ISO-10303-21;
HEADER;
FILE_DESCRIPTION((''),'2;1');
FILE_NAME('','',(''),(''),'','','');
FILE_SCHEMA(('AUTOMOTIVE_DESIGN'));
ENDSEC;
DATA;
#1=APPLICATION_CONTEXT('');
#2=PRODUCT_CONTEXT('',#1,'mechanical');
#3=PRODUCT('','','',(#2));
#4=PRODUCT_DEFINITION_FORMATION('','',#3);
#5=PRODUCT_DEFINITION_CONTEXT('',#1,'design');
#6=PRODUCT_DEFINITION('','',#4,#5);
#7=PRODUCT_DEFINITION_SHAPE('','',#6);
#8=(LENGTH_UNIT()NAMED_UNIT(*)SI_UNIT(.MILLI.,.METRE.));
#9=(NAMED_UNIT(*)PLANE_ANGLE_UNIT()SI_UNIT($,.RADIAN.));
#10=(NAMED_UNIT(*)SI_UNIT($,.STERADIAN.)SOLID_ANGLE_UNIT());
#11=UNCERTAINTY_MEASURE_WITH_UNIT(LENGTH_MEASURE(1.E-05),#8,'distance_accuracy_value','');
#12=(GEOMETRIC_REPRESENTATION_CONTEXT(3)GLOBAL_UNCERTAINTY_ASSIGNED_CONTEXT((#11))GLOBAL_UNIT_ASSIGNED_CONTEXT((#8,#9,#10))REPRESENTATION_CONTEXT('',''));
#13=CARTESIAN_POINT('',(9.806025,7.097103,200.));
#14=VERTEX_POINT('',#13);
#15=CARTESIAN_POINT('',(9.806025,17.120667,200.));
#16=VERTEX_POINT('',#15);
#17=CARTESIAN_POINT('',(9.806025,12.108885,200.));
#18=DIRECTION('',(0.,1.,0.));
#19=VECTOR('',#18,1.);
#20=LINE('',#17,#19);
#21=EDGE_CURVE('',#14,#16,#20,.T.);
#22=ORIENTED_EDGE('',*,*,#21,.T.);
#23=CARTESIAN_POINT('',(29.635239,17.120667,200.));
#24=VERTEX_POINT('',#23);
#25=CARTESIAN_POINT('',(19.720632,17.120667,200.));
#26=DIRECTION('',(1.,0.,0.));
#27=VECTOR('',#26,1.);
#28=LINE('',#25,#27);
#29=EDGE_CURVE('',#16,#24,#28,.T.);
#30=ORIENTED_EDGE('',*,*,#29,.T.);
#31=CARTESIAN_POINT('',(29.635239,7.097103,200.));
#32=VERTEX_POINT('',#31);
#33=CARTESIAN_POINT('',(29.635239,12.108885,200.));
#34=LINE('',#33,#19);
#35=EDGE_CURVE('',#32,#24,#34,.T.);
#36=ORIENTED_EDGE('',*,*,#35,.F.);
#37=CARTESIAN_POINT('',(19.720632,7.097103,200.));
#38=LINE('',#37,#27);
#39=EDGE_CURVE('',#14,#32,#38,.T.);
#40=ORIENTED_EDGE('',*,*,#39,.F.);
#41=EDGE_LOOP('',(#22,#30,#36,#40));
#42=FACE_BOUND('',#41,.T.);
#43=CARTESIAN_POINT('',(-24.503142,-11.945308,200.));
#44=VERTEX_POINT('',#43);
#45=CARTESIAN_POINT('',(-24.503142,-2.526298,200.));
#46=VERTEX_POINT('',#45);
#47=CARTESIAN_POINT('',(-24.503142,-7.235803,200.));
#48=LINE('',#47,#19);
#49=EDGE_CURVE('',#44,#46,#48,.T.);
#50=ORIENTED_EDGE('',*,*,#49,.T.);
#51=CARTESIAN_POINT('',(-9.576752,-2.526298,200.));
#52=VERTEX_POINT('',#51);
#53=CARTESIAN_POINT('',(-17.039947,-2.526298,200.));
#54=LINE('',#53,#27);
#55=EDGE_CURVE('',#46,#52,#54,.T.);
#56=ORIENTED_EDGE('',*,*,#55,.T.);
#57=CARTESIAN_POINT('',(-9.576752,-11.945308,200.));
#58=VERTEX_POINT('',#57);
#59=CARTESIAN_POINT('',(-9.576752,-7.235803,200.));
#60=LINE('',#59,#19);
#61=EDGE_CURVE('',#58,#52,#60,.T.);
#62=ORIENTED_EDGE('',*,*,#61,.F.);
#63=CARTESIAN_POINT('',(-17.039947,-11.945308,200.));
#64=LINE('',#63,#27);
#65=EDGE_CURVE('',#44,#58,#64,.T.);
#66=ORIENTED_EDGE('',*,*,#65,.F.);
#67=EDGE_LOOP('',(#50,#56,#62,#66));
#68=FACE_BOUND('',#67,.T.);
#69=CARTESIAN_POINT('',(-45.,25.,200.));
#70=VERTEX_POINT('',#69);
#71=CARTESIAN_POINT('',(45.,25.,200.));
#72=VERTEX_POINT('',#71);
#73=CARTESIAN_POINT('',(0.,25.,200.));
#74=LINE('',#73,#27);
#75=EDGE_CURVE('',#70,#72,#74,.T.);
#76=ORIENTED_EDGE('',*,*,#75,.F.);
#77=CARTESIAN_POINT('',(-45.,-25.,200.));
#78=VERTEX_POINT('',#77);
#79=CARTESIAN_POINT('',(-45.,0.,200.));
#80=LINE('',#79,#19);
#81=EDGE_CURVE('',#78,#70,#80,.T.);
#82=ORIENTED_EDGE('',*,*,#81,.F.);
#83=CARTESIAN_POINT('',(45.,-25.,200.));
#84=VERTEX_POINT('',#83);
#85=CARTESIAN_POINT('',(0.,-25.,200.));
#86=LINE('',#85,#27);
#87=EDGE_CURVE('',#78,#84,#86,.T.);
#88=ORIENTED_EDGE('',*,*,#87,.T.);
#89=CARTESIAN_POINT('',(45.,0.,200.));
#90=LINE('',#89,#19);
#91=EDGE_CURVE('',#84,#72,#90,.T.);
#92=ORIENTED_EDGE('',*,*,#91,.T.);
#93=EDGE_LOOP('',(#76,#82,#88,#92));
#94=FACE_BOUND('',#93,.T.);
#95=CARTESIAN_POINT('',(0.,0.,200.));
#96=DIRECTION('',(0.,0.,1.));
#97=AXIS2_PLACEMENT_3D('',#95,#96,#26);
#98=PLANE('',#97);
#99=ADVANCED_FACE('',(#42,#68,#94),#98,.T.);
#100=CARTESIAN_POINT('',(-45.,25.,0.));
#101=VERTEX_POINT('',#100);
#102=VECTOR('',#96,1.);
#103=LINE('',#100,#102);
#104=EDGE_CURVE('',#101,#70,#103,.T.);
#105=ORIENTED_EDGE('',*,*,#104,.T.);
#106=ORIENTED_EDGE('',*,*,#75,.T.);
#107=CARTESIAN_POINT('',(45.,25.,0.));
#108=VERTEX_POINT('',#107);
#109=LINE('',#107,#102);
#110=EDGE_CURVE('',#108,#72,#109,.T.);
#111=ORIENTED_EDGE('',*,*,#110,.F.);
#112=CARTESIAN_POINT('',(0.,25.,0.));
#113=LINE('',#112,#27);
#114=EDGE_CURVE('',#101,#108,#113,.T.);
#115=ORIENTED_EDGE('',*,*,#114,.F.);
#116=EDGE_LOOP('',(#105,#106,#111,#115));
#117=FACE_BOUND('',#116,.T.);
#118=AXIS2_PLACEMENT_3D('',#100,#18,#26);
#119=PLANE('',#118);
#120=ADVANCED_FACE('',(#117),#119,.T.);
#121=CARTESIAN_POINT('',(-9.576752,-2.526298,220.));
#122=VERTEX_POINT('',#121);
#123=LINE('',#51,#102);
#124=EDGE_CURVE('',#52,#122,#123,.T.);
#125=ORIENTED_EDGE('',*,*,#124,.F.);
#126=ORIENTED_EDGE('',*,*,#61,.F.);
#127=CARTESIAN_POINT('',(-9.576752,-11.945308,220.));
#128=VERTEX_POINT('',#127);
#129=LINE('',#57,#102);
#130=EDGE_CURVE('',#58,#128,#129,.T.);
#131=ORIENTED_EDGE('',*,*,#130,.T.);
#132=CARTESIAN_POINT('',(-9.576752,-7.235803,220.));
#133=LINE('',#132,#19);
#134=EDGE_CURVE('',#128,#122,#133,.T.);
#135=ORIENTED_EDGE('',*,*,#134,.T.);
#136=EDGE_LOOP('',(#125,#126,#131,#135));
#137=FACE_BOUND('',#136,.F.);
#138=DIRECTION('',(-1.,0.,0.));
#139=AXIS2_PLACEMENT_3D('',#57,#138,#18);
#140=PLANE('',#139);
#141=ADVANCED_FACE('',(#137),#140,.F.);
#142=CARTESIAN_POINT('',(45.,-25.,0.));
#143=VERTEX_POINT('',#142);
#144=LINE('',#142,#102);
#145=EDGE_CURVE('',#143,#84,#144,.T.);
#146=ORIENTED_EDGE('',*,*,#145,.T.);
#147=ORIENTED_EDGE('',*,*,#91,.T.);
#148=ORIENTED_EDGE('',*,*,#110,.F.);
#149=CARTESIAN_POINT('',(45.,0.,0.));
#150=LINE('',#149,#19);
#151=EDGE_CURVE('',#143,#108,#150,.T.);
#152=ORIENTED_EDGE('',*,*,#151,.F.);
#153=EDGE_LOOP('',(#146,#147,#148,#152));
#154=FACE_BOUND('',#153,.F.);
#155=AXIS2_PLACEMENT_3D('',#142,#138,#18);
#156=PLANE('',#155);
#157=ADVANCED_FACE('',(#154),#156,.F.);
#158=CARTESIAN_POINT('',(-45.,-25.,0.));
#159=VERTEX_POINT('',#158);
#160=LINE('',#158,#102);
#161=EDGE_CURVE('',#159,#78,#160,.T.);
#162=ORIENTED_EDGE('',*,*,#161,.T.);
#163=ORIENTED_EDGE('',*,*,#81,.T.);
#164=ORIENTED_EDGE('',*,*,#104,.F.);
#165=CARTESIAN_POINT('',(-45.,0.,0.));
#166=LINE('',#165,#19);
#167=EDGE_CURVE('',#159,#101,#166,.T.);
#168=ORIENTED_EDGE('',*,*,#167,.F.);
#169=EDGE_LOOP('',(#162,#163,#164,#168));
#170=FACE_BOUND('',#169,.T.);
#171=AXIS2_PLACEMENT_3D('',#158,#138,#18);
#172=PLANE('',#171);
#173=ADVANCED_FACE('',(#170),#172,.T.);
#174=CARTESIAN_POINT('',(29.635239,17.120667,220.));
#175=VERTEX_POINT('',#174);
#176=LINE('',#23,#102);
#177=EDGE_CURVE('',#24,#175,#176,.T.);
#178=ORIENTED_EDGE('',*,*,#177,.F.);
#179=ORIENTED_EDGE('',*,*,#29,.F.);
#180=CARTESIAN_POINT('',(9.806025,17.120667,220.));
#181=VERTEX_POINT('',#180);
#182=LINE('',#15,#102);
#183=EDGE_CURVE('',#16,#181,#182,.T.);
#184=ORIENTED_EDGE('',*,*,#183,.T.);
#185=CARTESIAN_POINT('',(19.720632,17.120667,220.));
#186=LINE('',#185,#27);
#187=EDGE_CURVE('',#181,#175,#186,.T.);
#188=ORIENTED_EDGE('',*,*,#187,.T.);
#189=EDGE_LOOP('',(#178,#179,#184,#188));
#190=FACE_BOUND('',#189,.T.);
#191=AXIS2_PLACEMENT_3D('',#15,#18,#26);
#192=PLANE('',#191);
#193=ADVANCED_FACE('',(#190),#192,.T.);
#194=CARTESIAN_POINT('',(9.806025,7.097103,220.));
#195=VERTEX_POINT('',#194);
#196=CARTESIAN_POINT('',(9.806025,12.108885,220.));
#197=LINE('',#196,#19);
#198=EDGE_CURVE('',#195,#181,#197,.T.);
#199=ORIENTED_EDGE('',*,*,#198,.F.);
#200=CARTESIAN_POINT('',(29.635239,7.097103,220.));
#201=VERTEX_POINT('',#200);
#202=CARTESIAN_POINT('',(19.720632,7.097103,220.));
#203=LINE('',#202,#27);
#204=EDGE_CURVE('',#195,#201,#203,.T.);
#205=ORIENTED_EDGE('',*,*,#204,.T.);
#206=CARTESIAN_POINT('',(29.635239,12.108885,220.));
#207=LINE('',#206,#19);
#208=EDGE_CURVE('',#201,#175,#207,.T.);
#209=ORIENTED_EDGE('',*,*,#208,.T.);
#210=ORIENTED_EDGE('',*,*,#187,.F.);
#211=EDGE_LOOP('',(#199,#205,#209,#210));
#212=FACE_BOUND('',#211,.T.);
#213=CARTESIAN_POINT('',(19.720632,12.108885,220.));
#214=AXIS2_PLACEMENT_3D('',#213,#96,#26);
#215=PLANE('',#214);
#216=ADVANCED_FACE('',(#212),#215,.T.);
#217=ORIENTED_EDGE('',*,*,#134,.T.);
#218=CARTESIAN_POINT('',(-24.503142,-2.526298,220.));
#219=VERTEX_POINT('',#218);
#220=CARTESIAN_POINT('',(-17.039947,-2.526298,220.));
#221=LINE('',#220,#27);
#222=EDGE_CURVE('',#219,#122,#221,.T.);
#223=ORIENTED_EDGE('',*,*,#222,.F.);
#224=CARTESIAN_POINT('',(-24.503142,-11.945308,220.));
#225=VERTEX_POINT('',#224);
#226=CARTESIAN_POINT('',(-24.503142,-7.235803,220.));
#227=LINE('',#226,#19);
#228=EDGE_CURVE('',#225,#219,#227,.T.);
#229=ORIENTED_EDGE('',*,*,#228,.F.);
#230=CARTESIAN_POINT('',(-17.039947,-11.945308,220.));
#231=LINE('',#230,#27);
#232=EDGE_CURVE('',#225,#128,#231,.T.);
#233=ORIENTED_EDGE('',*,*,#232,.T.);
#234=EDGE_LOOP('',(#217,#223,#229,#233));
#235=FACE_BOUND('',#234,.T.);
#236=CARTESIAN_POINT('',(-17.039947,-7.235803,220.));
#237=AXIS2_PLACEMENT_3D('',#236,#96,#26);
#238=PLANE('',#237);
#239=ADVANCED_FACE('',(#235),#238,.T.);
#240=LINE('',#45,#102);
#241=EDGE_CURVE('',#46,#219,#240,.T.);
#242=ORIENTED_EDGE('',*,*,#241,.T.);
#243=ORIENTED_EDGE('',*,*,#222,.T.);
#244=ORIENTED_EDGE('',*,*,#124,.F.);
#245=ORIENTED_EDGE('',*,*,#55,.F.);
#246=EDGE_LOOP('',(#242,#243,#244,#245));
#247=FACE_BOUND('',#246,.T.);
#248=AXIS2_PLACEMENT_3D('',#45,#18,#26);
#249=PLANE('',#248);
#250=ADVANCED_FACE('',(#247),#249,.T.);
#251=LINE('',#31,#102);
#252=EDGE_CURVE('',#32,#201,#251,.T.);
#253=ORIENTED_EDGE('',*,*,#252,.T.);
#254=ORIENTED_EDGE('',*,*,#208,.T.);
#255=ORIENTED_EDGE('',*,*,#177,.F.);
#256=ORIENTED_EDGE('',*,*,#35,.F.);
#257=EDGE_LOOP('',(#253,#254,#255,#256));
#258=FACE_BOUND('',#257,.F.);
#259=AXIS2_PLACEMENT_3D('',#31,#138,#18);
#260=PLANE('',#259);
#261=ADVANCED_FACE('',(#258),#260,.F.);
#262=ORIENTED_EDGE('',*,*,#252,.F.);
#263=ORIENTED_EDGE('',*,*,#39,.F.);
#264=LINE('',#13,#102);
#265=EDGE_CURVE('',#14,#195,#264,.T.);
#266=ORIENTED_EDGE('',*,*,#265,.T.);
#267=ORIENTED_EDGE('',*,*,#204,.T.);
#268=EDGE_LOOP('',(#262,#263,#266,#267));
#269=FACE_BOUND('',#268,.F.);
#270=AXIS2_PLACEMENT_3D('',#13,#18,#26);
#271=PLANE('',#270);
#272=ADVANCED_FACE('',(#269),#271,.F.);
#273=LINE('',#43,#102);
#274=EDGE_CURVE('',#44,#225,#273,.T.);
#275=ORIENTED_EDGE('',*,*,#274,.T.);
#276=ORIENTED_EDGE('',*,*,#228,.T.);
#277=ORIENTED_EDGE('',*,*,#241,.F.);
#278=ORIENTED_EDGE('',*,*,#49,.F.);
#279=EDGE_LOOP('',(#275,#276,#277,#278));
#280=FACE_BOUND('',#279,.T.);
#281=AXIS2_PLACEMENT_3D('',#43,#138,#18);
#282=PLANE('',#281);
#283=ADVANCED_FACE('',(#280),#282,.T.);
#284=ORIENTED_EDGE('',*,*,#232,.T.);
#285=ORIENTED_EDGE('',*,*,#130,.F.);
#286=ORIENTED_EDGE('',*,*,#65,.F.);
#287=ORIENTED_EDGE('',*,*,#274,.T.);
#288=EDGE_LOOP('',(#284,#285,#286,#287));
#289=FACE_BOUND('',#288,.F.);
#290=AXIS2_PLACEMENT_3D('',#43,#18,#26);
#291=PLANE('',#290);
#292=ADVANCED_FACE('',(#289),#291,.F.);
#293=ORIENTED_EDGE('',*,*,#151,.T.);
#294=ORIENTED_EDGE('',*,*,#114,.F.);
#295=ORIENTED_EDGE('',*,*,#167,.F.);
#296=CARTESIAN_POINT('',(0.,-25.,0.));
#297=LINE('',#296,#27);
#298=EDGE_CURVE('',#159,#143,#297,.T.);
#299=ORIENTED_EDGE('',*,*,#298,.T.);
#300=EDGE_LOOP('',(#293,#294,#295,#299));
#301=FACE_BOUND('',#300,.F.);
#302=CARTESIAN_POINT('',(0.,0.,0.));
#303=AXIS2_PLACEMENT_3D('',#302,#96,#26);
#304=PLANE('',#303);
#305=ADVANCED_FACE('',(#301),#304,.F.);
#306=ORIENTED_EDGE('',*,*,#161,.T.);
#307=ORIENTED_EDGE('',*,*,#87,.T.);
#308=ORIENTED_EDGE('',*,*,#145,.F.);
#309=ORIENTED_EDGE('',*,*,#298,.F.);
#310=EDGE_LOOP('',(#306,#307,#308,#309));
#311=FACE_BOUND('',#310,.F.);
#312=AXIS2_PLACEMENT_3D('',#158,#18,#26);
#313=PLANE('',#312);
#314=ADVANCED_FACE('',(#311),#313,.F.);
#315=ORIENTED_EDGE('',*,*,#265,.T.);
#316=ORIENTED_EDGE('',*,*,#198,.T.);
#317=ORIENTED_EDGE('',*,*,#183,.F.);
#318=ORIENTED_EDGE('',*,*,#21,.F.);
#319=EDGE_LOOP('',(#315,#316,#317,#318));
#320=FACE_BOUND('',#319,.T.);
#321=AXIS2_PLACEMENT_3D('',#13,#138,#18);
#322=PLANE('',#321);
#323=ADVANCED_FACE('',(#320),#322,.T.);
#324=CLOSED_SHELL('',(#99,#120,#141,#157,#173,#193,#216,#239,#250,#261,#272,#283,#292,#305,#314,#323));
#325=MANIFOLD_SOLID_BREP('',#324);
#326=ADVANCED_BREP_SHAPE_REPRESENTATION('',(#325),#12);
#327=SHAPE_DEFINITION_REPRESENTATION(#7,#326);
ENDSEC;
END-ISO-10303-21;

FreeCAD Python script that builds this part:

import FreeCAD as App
import Part
import Sketcher

V = App.Vector
Q = App.Units.Quantity


def add_polygon(sketch, points):
    """Adds a closed chain of lines whose ends are joined by coincident constraints."""
    first, n = sketch.GeometryCount, len(points)
    for a, b in zip(points, points[1:] + points[:1]):
        sketch.addGeometry(Part.LineSegment(App.Vector(*a, 0), App.Vector(*b, 0)), False)
    for i in range(n):
        sketch.addConstraint(Sketcher.Constraint("Coincident", first + i, 2, first + (i + 1) % n, 1))

doc = App.newDocument("Part")
body = doc.addObject("PartDesign::Body", "Body")

sketch1 = body.newObject("Sketcher::SketchObject", "Sketch")
sketch1.AttachmentSupport = (doc.getObject("XY_Plane"), [""])
sketch1.MapMode = "FlatFace"
add_polygon(sketch1, [(-45, 25), (-45, -25), (45, -25), (45, 25)])
sketch1.addConstraint(Sketcher.Constraint("Vertical", 0))
sketch1.addConstraint(Sketcher.Constraint("Horizontal", 1))
sketch1.addConstraint(Sketcher.Constraint("Vertical", 2))
sketch1.addConstraint(Sketcher.Constraint("Horizontal", 3))
sketch1.addConstraint(Sketcher.Constraint("Symmetric", 0, 2, 2, 2, -1, 1))
sketch1.addConstraint(Sketcher.Constraint("DistanceX", 1, 1, 1, 2, Q("90 mm")))
sketch1.addConstraint(Sketcher.Constraint("DistanceY", 0, 2, 0, 1, Q("50 mm")))
pad1 = body.newObject("PartDesign::Pad", "Pad")
pad1.Profile = sketch1
pad1.Length = 200

sketch2 = body.newObject("Sketcher::SketchObject", "Sketch001")
sketch2.AttachmentSupport = (doc.getObject("XY_Plane"), [""])
sketch2.MapMode = "FlatFace"
sketch2.AttachmentOffset = App.Placement(V(0, 0, 200), App.Rotation())
add_polygon(sketch2, [(10, 17), (10, 7), (30, 7), (30, 17)])
add_polygon(sketch2, [(-25, -3), (-25, -12), (-10, -12), (-10, -3)])
sketch2.addConstraint(Sketcher.Constraint("Vertical", 0))
sketch2.addConstraint(Sketcher.Constraint("Horizontal", 1))
sketch2.addConstraint(Sketcher.Constraint("Vertical", 2))
sketch2.addConstraint(Sketcher.Constraint("Horizontal", 3))
sketch2.addConstraint(Sketcher.Constraint("Vertical", 4))
sketch2.addConstraint(Sketcher.Constraint("Horizontal", 5))
sketch2.addConstraint(Sketcher.Constraint("Vertical", 6))
sketch2.addConstraint(Sketcher.Constraint("Horizontal", 7))
sketch2.addConstraint(Sketcher.Constraint("DistanceX", 5, 1, 5, 2, Q("14.92639 mm")))
sketch2.addConstraint(Sketcher.Constraint("DistanceY", 4, 2, 4, 1, Q("9.419009 mm")))
sketch2.addConstraint(Sketcher.Constraint("DistanceY", 6, 2, -1, 1, Q("2.526298 mm")))
sketch2.addConstraint(Sketcher.Constraint("DistanceY", 6, 2, 0, 2, Q("9.623401 mm")))
sketch2.addConstraint(Sketcher.Constraint("DistanceX", 1, 1, 1, 2, Q("19.829214 mm")))
sketch2.addConstraint(Sketcher.Constraint("DistanceY", 0, 2, 0, 1, Q("10.023564 mm")))
sketch2.addConstraint(Sketcher.Constraint("DistanceX", -1, 1, 1, 2, Q("29.635239 mm")))
sketch2.addConstraint(Sketcher.Constraint("DistanceX", 4, 2, 1, 2, Q("54.138381 mm")))
pad2 = body.newObject("PartDesign::Pad", "Pad001")
pad2.Profile = sketch2
pad2.Length = 20

doc.recompute()
